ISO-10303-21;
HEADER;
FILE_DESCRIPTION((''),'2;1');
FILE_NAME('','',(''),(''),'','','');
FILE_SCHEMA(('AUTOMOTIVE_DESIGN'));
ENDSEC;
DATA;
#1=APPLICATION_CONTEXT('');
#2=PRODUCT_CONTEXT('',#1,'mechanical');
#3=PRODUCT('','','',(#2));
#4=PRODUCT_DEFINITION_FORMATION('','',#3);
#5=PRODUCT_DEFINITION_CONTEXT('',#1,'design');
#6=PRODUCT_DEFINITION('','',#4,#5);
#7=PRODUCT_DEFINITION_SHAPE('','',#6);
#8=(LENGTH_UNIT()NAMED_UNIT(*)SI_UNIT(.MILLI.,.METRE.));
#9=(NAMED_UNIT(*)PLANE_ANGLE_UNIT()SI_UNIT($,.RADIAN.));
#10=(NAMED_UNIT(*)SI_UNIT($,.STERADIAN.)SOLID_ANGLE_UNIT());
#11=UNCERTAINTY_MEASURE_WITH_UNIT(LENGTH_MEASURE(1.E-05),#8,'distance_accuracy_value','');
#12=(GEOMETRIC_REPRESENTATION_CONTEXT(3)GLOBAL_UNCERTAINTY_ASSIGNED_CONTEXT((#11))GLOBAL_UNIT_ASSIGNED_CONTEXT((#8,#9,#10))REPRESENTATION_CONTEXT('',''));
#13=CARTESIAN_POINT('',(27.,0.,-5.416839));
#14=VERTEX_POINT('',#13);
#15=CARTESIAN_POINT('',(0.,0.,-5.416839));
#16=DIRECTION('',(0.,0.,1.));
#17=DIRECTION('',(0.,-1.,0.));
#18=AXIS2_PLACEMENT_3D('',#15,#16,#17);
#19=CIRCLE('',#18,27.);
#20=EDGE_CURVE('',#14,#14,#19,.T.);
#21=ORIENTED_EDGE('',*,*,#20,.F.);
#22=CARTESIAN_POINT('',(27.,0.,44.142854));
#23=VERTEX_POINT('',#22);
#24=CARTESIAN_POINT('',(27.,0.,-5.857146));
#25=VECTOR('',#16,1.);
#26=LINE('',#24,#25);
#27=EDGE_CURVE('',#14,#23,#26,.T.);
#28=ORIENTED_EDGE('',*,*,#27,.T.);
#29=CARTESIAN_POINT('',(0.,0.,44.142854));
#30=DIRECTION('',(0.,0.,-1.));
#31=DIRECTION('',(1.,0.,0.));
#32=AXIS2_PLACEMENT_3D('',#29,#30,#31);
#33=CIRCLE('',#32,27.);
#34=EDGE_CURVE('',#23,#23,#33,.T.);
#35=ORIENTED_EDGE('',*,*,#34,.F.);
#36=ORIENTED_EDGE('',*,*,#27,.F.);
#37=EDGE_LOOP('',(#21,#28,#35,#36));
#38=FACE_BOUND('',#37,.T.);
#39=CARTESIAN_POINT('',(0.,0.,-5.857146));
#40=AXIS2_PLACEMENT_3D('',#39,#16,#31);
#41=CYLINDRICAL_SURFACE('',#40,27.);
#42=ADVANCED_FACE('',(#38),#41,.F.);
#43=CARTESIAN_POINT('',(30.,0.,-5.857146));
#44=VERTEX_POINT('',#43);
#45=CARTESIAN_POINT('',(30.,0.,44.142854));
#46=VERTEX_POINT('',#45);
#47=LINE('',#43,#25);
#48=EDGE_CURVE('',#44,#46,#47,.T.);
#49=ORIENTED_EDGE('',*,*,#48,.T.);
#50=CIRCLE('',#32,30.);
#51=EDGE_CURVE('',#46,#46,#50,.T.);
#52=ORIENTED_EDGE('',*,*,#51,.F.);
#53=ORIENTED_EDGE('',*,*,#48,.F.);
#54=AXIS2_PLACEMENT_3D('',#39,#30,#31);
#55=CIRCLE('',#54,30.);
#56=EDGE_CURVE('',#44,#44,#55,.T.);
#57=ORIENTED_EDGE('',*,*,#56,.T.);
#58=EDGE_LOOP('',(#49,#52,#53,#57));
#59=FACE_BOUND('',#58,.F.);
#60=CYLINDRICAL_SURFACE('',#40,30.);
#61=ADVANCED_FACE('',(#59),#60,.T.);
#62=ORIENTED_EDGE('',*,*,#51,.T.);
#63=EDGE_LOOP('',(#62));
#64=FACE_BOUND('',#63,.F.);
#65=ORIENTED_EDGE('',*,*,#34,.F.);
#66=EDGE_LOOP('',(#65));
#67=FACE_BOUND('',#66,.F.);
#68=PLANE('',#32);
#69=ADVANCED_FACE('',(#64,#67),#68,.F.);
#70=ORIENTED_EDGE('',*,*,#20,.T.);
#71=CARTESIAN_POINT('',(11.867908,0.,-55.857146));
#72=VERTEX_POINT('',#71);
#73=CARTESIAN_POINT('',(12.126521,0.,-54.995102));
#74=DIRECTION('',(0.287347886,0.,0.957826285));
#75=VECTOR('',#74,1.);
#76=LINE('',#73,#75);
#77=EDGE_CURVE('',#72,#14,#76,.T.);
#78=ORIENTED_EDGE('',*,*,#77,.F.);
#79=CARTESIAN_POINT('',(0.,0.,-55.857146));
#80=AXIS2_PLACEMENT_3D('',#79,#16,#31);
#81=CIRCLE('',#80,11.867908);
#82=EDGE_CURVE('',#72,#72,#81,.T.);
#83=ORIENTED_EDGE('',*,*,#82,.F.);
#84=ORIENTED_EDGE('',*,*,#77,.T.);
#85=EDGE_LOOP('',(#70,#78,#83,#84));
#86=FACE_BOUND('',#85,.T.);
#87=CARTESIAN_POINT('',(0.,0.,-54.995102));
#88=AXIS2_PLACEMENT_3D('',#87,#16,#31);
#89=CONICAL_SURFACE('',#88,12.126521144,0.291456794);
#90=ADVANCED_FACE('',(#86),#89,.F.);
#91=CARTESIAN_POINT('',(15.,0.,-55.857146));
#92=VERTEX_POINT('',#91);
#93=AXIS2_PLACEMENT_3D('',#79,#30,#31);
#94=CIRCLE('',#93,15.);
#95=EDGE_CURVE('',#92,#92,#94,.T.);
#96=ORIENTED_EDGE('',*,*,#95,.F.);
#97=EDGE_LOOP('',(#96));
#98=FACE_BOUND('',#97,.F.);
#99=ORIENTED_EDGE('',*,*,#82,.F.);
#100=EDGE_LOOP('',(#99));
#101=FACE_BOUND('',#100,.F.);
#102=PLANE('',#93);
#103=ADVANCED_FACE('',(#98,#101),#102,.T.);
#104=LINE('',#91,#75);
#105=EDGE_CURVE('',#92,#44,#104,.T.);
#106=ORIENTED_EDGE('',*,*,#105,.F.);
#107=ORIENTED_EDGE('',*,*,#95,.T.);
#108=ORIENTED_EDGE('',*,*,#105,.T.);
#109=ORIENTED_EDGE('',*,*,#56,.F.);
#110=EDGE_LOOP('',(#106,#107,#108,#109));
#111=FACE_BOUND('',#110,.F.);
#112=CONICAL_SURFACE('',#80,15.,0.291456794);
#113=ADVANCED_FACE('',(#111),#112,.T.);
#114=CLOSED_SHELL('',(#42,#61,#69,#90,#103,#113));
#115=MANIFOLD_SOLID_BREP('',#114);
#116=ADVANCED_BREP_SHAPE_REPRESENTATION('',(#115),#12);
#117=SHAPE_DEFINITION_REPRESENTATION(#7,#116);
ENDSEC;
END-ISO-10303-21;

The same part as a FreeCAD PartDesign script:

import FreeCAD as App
import Part
import Sketcher


def faces_at(feature, points):
    """Names of the faces that lie closest to the given points."""
    faces = feature.Shape.Faces
    near = lambda p: min(range(len(faces)), key=lambda i: faces[i].distToShape(Part.Vertex(*p))[0])
    return sorted({f"Face{near(p) + 1}" for p in points})

doc = App.newDocument("Part")
body = doc.addObject("PartDesign::Body", "Body")

# Sketch on XZ plane
sketch1 = body.newObject("Sketcher::SketchObject", "Sketch")
sketch1.AttachmentSupport = (doc.getObject("XZ_Plane"), [""])
sketch1.MapMode = "FlatFace"
sketch1.addGeometry(Part.LineSegment(App.Vector(30, 44, 0), App.Vector(0, 44, 0)), False)
sketch1.addGeometry(Part.LineSegment(App.Vector(0, 44, 0), App.Vector(0, -56, 0)), False)
sketch1.addGeometry(Part.LineSegment(App.Vector(0, -56, 0), App.Vector(15, -56, 0)), False)
sketch1.addGeometry(Part.LineSegment(App.Vector(15, -56, 0), App.Vector(30, -6, 0)), False)
sketch1.addGeometry(Part.LineSegment(App.Vector(30, -6, 0), App.Vector(30, 44, 0)), False)
sketch1.addConstraint(Sketcher.Constraint("Coincident", 0, 2, 1, 1))
sketch1.addConstraint(Sketcher.Constraint("Coincident", 1, 2, 2, 1))
sketch1.addConstraint(Sketcher.Constraint("Coincident", 2, 2, 3, 1))
sketch1.addConstraint(Sketcher.Constraint("Coincident", 3, 2, 4, 1))
sketch1.addConstraint(Sketcher.Constraint("Coincident", 4, 2, 0, 1))
sketch1.addConstraint(Sketcher.Constraint("Horizontal", 0))
sketch1.addConstraint(Sketcher.Constraint("Vertical", 1))
sketch1.addConstraint(Sketcher.Constraint("Horizontal", 2))
sketch1.addConstraint(Sketcher.Constraint("Vertical", 4))
sketch1.addConstraint(Sketcher.Constraint("PointOnObject", 0, 2, -2))
sketch1.addConstraint(Sketcher.Constraint("DistanceX", 0, 2, 0, 1, 30.0))
sketch1.addConstraint(Sketcher.Constraint("DistanceX", 2, 1, 2, 2, 15.0))
sketch1.addConstraint(Sketcher.Constraint("DistanceY", 1, 2, 1, 1, 100.0))
sketch1.addConstraint(Sketcher.Constraint("DistanceY", 4, 1, 4, 2, 50.0))
sketch1.addConstraint(Sketcher.Constraint("DistanceY", -1, 1, 0, 2, 44.142854))
revolution = body.newObject("PartDesign::Revolution", "Revolution")
revolution.Profile = sketch1
revolution.ReferenceAxis = (sketch1, ["V_Axis"])
revolution.Angle = 360
doc.recompute()

thickness = body.newObject("PartDesign::Thickness", "Thickness")
thickness.Base = (revolution, faces_at(revolution, [(0, 0, 44.143), (0, 0, -55.857)]))
thickness.Value = 3
thickness.Reversed = True
thickness.Join = "Arc"

doc.recompute()
